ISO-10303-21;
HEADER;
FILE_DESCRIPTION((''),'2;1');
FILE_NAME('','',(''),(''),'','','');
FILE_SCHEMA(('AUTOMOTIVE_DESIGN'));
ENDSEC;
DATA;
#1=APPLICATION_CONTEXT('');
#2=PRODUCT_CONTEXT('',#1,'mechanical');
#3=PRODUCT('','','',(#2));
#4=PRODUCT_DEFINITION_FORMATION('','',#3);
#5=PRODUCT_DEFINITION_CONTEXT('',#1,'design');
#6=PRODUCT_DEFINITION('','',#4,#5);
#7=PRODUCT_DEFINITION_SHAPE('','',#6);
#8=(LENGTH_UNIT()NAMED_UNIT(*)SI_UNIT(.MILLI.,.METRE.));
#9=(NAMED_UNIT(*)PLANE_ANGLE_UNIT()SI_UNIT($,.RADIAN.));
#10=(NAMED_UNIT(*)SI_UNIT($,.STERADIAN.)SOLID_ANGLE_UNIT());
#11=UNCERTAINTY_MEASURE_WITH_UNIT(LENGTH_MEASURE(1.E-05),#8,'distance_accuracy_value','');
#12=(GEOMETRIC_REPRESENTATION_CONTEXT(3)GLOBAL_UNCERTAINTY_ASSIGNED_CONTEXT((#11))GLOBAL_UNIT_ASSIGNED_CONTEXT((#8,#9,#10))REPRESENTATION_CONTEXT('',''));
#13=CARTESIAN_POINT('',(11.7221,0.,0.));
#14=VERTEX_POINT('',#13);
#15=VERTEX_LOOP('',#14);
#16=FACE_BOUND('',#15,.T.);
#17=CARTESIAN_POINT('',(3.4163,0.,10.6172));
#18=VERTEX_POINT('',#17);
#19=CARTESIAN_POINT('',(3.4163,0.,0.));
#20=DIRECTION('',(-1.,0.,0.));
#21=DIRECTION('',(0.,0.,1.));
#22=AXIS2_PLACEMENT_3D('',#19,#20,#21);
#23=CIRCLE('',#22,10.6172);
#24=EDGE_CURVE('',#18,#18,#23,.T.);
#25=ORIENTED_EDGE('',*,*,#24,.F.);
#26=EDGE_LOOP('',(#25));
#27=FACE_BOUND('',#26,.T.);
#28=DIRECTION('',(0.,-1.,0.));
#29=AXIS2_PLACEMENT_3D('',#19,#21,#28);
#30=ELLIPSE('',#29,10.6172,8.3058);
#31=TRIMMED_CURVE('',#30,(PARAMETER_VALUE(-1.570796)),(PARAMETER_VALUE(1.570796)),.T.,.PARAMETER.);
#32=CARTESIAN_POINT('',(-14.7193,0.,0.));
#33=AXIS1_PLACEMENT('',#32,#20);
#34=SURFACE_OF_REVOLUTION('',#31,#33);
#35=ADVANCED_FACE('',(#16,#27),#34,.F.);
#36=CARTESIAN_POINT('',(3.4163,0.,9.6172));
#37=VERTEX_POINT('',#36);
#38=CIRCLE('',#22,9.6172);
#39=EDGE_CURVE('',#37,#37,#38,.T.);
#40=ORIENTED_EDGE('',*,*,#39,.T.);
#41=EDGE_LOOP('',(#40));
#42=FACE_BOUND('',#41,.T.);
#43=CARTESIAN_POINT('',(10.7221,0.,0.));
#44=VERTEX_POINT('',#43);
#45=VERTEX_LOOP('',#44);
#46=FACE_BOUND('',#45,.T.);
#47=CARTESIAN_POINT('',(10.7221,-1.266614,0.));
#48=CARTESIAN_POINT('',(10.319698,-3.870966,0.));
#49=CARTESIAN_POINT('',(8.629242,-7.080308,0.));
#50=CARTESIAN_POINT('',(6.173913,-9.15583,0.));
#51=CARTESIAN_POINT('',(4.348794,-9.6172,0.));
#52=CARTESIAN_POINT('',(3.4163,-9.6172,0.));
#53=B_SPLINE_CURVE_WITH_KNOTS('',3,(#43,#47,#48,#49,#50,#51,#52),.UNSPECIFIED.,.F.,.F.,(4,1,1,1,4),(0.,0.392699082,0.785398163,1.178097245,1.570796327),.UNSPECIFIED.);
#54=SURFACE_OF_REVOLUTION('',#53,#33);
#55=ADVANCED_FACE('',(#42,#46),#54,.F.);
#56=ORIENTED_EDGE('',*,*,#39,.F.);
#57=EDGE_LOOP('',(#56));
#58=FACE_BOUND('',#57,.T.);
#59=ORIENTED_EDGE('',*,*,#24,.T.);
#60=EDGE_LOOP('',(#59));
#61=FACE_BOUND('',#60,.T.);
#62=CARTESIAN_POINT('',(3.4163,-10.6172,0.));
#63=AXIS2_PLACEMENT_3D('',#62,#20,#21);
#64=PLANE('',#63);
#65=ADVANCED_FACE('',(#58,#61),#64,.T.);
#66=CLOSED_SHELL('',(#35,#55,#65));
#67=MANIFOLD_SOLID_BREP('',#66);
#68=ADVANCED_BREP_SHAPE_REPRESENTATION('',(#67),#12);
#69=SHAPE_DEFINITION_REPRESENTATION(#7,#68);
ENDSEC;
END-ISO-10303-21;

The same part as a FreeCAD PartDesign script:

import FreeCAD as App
import Part
import Sketcher
from FreeCAD import Vector

doc = App.newDocument("Part")
body = doc.addObject("PartDesign::Body", "Body")

sketch1 = body.newObject("Sketcher::SketchObject", "Sketch")
sketch1.AttachmentSupport = (doc.getObject("XY_Plane"), [""])
sketch1.MapMode = "FlatFace"
sketch1.addGeometry([
    Part.LineSegment(Vector(11.7221, 0, 0), Vector(10.7221, 0, 0)),
    Part.BSplineCurve([Vector(3.4163, -9.6172, 0), Vector(4.348794, -9.6172, 0), Vector(6.173913, -9.15583, 0), Vector(8.629242, -7.080308, 0), Vector(10.319698, -3.870966, 0), Vector(10.7221, -1.266614, 0), Vector(10.7221, 0, 0)], [4, 1, 1, 1, 4], [0, 0.392699082, 0.785398163, 1.178097245, 1.570796327], False, 3, [1, 1, 1, 1, 1, 1, 1], False),
    Part.LineSegment(Vector(3.4163, -9.6172, 0), Vector(3.4163, -10.6172, 0)),
    Part.BSplineCurve([Vector(3.4163, -10.6172, 0), Vector(11.7221, -10.6172, 0), Vector(11.7221, 0, 0)], [3, 3], [0, 1.570796327], False, 2, [1, 0.707106781, 1], False),
], False)
sketch1.addConstraint([
    Sketcher.Constraint("Block", 1),
    Sketcher.Constraint("Block", 3),
    Sketcher.Constraint("Coincident", 0, 2, 1, 2),
    Sketcher.Constraint("Coincident", 1, 1, 2, 1),
    Sketcher.Constraint("Coincident", 2, 2, 3, 1),
    Sketcher.Constraint("Coincident", 3, 2, 0, 1),
])
revolution = body.newObject("PartDesign::Revolution", "Revolution")
revolution.Profile = sketch1
revolution.ReferenceAxis = (sketch1, ["H_Axis"])
revolution.Angle = 360

doc.recompute()
